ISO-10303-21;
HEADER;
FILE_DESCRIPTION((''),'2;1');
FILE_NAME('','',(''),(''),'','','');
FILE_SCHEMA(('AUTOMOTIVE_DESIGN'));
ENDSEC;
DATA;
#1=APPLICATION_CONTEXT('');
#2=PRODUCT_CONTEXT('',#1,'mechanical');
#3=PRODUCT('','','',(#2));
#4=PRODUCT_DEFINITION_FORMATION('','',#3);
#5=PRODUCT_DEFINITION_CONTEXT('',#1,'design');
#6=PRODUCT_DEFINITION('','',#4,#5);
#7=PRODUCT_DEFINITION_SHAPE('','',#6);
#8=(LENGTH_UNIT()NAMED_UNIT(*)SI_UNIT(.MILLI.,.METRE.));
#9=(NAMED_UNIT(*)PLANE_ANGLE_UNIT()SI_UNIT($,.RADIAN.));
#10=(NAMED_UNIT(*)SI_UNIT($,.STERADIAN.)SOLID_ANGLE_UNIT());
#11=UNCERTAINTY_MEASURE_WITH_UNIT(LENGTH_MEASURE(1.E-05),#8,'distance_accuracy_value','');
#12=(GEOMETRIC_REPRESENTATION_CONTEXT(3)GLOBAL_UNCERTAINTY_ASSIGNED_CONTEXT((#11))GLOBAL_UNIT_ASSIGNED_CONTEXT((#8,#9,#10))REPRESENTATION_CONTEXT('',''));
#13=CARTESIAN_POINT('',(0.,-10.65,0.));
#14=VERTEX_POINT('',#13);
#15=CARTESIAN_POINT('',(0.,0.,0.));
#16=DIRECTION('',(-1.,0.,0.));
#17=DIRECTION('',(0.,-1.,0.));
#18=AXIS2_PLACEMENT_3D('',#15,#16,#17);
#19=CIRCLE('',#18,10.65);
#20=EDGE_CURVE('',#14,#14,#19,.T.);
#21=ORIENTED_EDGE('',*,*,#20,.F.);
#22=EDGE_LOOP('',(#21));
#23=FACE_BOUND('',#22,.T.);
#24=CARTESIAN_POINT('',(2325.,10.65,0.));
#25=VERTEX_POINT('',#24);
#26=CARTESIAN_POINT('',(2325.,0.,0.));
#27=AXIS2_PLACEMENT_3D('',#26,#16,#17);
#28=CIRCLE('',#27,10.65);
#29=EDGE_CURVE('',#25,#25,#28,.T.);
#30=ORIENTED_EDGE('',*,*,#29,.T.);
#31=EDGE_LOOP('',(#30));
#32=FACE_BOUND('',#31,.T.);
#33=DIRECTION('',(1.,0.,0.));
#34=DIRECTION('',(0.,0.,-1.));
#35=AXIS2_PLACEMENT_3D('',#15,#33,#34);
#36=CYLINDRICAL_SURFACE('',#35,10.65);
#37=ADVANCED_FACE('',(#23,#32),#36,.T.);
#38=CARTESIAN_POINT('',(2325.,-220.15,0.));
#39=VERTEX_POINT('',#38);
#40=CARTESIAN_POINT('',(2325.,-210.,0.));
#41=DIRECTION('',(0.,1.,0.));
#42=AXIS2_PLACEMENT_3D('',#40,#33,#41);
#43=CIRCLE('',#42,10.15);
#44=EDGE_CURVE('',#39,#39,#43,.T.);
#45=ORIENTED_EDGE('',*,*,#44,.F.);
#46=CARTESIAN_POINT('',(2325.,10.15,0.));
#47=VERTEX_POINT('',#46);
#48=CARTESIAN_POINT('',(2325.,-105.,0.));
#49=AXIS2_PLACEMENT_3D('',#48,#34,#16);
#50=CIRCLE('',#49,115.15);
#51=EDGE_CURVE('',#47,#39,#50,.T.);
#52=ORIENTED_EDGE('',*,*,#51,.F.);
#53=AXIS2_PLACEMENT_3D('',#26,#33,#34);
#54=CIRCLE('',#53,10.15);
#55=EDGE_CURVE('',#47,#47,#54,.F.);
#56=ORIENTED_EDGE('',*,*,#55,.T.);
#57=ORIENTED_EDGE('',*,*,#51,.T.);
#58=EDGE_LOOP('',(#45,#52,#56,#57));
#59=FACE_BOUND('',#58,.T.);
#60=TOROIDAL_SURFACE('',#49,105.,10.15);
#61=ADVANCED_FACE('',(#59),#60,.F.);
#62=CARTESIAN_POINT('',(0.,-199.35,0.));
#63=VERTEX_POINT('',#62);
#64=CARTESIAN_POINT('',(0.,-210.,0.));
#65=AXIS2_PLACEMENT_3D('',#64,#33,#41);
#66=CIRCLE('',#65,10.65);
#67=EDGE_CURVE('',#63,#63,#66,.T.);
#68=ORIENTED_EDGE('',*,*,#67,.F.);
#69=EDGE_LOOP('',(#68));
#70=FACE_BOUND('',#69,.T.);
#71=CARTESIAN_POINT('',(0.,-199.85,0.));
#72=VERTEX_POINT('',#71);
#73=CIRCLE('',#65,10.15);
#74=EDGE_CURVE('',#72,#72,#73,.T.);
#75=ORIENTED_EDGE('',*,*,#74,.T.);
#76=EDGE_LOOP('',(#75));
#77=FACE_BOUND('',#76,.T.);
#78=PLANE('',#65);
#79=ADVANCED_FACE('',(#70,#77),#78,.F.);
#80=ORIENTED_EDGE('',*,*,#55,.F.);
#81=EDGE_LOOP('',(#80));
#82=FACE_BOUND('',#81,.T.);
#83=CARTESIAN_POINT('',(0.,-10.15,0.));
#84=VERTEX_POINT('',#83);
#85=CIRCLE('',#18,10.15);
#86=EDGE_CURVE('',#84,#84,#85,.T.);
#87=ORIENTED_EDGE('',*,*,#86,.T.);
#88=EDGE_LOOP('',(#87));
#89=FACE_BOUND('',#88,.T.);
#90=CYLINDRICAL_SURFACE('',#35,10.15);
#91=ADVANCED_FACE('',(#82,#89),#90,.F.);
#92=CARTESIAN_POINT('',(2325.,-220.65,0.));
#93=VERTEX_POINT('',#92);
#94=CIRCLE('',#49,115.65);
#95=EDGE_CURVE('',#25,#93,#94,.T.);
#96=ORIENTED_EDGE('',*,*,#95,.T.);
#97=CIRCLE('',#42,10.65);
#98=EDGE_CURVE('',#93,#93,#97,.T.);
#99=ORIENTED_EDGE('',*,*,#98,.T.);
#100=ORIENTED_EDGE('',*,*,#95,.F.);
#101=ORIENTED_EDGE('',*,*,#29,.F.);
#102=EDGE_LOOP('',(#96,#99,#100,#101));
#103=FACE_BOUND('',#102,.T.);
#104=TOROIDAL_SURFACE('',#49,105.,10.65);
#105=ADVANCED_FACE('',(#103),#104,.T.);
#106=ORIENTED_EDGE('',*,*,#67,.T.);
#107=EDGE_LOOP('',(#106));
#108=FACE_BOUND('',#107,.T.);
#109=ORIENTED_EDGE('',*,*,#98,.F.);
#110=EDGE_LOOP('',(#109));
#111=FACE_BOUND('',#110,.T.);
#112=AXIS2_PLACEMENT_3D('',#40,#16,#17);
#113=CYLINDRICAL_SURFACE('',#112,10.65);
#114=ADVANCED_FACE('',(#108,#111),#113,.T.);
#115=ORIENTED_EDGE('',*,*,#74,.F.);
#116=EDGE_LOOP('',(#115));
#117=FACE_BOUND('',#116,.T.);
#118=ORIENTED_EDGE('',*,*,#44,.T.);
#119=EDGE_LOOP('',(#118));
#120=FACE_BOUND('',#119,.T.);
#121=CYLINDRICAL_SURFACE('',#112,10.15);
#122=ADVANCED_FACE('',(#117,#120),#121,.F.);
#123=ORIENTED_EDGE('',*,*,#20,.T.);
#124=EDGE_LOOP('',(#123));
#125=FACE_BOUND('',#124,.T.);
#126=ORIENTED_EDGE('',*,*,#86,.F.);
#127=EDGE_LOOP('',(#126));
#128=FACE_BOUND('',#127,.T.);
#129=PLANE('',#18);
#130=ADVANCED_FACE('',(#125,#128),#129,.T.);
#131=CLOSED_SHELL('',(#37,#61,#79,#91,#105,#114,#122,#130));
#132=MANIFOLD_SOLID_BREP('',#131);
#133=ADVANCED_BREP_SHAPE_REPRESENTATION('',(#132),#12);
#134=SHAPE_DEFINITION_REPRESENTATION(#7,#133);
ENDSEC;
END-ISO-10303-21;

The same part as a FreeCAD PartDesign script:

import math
import FreeCAD as App
import Part
import Sketcher
from FreeCAD import Vector
Q = App.Units.Quantity

doc = App.newDocument("Part")
body = doc.addObject("PartDesign::Body", "Body")

# Sketch on YZ plane
sketch1 = body.newObject("Sketcher::SketchObject", "Sketch")
sketch1.AttachmentSupport = (doc.getObject("YZ_Plane"), [""])
sketch1.MapMode = "FlatFace"
sketch1.addGeometry(Part.Circle(Vector(0, 0, 0), Vector(0, 0, 1), 11), False)
sketch1.addGeometry(Part.Circle(Vector(0, 0, 0), Vector(0, 0, 1), 10), False)
sketch1.addConstraint(Sketcher.Constraint("Coincident", 0, 3, -1, 1))
sketch1.addConstraint(Sketcher.Constraint("Coincident", 1, 3, -1, 1))
sketch1.addConstraint(Sketcher.Constraint("Diameter", 0, Q("21.3 mm")))
sketch1.addConstraint(Sketcher.Constraint("Diameter", 1, Q("20.3 mm")))

# Sketch on XY plane
sketch2 = body.newObject("Sketcher::SketchObject", "Sketch001")
sketch2.AttachmentSupport = (doc.getObject("XY_Plane"), [""])
sketch2.MapMode = "FlatFace"
sketch2.addGeometry(Part.LineSegment(Vector(0, 0, 0), Vector(2325, 0, 0)), False)
sketch2.addGeometry(Part.ArcOfCircle(Part.Circle(Vector(2325, -105, 0), Vector(0, 0, 1), 105), math.radians(-90), math.radians(90)), False)
sketch2.addGeometry(Part.LineSegment(Vector(2325, -210, 0), Vector(0, -210, 0)), False)
sketch2.addConstraint(Sketcher.Constraint("Tangent", 0, 2, 1, 2))
sketch2.addConstraint(Sketcher.Constraint("Tangent", 1, 1, 2, 1))
sketch2.addConstraint(Sketcher.Constraint("Horizontal", 0))
sketch2.addConstraint(Sketcher.Constraint("Horizontal", 2))
sketch2.addConstraint(Sketcher.Constraint("Coincident", 0, 1, -1, 1))
sketch2.addConstraint(Sketcher.Constraint("PointOnObject", 2, 2, -2))
sketch2.addConstraint(Sketcher.Constraint("Radius", 1, Q("105 mm")))
sketch2.addConstraint(Sketcher.Constraint("DistanceX", 0, 1, 0, 2, Q("2325 mm")))
doc.recompute()

additivepipe = body.newObject("PartDesign::AdditivePipe", "AdditivePipe")
additivepipe.Profile = sketch1
additivepipe.Spine = (sketch2, ["Edge1", "Edge2", "Edge3"])

doc.recompute()
